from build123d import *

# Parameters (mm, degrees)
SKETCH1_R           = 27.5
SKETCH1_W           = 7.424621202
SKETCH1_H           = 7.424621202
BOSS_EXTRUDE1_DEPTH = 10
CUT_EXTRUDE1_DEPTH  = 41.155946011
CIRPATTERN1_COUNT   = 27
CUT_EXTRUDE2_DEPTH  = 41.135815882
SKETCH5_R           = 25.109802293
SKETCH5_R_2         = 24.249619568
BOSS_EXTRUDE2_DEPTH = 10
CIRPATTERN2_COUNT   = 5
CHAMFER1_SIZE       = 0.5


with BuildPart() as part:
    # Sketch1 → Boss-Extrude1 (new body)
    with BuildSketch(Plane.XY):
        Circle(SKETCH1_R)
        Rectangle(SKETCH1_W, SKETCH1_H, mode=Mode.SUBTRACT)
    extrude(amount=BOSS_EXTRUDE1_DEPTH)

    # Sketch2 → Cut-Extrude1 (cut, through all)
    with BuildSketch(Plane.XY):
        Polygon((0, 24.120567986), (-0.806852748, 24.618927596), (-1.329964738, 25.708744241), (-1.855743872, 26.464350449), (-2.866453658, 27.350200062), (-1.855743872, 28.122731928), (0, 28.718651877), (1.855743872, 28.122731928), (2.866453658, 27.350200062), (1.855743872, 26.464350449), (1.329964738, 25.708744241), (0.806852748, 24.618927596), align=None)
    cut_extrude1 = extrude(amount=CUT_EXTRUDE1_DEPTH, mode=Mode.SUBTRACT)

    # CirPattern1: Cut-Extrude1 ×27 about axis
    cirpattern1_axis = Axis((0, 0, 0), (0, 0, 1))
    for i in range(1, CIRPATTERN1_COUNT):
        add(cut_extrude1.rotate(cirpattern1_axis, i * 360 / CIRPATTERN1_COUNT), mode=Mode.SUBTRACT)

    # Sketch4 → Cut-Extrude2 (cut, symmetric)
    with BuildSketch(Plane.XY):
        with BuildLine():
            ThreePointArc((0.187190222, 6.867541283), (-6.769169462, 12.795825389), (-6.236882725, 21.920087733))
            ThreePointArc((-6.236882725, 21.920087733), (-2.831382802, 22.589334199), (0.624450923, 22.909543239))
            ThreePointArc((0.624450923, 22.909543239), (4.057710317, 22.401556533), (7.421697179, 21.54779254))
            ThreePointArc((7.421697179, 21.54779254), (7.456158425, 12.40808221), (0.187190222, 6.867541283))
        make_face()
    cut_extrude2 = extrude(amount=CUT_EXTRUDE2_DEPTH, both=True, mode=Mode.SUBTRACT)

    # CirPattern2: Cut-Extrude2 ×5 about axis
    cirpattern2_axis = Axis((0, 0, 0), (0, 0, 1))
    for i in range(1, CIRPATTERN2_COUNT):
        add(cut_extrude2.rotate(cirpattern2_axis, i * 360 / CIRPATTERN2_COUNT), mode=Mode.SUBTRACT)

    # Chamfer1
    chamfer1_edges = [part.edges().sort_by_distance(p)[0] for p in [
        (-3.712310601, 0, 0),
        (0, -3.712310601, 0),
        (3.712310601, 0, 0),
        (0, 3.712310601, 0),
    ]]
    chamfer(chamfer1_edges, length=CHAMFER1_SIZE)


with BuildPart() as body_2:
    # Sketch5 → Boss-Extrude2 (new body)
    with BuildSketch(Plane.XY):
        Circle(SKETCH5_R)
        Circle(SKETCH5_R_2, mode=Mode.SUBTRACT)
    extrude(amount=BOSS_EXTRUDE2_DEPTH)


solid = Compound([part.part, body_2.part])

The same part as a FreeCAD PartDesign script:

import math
import FreeCAD as App
import Part
import Sketcher

V = App.Vector


def edges_at(feature, points):
    """Names of the edges that pass closest to the given points."""
    edges = feature.Shape.Edges
    near = lambda p: min(range(len(edges)), key=lambda i: edges[i].distToShape(Part.Vertex(*p))[0])
    return sorted({f"Edge{near(p) + 1}" for p in points})


def add_polygon(sketch, points):
    """Adds a closed chain of lines whose ends are joined by coincident constraints."""
    first, n = sketch.GeometryCount, len(points)
    for a, b in zip(points, points[1:] + points[:1]):
        sketch.addGeometry(Part.LineSegment(App.Vector(*a, 0), App.Vector(*b, 0)), False)
    for i in range(n):
        sketch.addConstraint(Sketcher.Constraint("Coincident", first + i, 2, first + (i + 1) % n, 1))

doc = App.newDocument("Part")
body = doc.addObject("PartDesign::Body", "Body")

# Sketch on XY plane
sketch1 = body.newObject("Sketcher::SketchObject", "Sketch")
sketch1.AttachmentSupport = (doc.getObject("XY_Plane"), [""])
sketch1.MapMode = "FlatFace"
sketch1.addGeometry(Part.Circle(V(0, 0, 0), V(0, 0, 1), 28), False)  # 0
add_polygon(sketch1, [(4, -4), (-4, -4), (-4, 4), (4, 4)])  # lines 1-4
sketch1.addConstraint(Sketcher.Constraint("Horizontal", 1))
sketch1.addConstraint(Sketcher.Constraint("Vertical", 2))
sketch1.addConstraint(Sketcher.Constraint("Horizontal", 3))
sketch1.addConstraint(Sketcher.Constraint("Vertical", 4))
sketch1.addConstraint(Sketcher.Constraint("Coincident", 0, 3, -1, 1))
sketch1.addConstraint(Sketcher.Constraint("Symmetric", 1, 2, 3, 2, -1, 1))
sketch1.addConstraint(Sketcher.Constraint("Equal", 3, 2))
sketch1.addConstraint(Sketcher.Constraint("Diameter", 0, 55.0))
sketch1.addConstraint(Sketcher.Constraint("DistanceX", 1, 2, 1, 1, 7.424621))
pad1 = body.newObject("PartDesign::Pad", "Pad")
pad1.Profile = sketch1
pad1.Length = 10

# Sketch on XY plane
sketch2 = body.newObject("Sketcher::SketchObject", "Sketch001")
sketch2.AttachmentSupport = (doc.getObject("XY_Plane"), [""])
sketch2.MapMode = "FlatFace"
add_polygon(sketch2, [(-0.8, 24.6), (0, 24.1), (0.8, 24.6), (1.3, 25.7), (1.9, 26.5), (2.9, 27.4), (1.9, 28.1), (0, 28.7), (-1.9, 28.1), (-2.9, 27.4), (-1.9, 26.5), (-1.3, 25.7)])  # lines 0-11
sketch2.addConstraint(Sketcher.Constraint("Symmetric", 5, 2, 7, 2, -2))
sketch2.addConstraint(Sketcher.Constraint("Symmetric", 4, 2, 8, 2, -2))
sketch2.addConstraint(Sketcher.Constraint("Symmetric", 3, 2, 9, 2, -2))
sketch2.addConstraint(Sketcher.Constraint("Symmetric", 2, 2, 10, 2, -2))
sketch2.addConstraint(Sketcher.Constraint("Symmetric", 1, 2, 11, 2, -2))
sketch2.addConstraint(Sketcher.Constraint("PointOnObject", 0, 2, -2))
sketch2.addConstraint(Sketcher.Constraint("PointOnObject", 6, 2, -2))
sketch2.addConstraint(Sketcher.Constraint("Vertical", 3, 2, 5, 2))
sketch2.addConstraint(Sketcher.Constraint("DistanceY", -1, 1, 4, 2, 27.3502))
sketch2.addConstraint(Sketcher.Constraint("DistanceX", 1, 2, 4, 2, 2.059601))
sketch2.addConstraint(Sketcher.Constraint("DistanceY", 3, 2, 6, 2, 2.254301))
sketch2.addConstraint(Sketcher.Constraint("Distance", 2, 1.208862))
sketch2.addConstraint(Sketcher.Constraint("Distance", 5, 1.27214))
sketch2.addConstraint(Sketcher.Constraint("Distance", 6, 1.949078))
sketch2.addConstraint(Sketcher.Constraint("DistanceY", -1, 1, 3, 2, 26.46435))
sketch2.addConstraint(Sketcher.Constraint("DistanceY", -1, 1, 5, 2, 28.122732))
sketch2.addConstraint(Sketcher.Constraint("DistanceY", 0, 2, 1, 2, 0.49836))
sketch2.addConstraint(Sketcher.Constraint("DistanceX", 1, 2, 2, 2, 0.523112))
sketch2.addConstraint(Sketcher.Constraint("Distance", 3, 0.920535))
pocket1 = body.newObject("PartDesign::Pocket", "Pocket")
pocket1.Profile = sketch2
pocket1.Type = "ThroughAll"
pocket1.Reversed = True
doc.recompute()

polarpattern = body.newObject("PartDesign::PolarPattern", "PolarPattern")
polarpattern.Originals = [pocket1]
polarpattern.Axis = (doc.getObject("Z_Axis"), [""])
polarpattern.Angle = 360
polarpattern.Occurrences = 27
body.Tip = polarpattern

# Sketch on XY plane
sketch3 = body.newObject("Sketcher::SketchObject", "Sketch002")
sketch3.AttachmentSupport = (doc.getObject("XY_Plane"), [""])
sketch3.MapMode = "FlatFace"
sketch3.addGeometry(Part.ArcOfCircle(Part.Circle(V(3, 17, 0), V(0, 0, 1), 10), math.radians(150), math.radians(256)), False)
sketch3.addGeometry(Part.ArcOfCircle(Part.Circle(V(-2, 17, 0), V(0, 0, 1), 10), math.radians(-79), math.radians(27)), False)
sketch3.addGeometry(Part.ArcOfCircle(Part.Circle(V(-3, -11, 0), V(0, 0, 1), 34), math.radians(72.85), math.radians(84.5)), False)
sketch3.addGeometry(Part.ArcOfCircle(Part.Circle(V(2, -11, 0), V(0, 0, 1), 34), math.radians(92.38), math.radians(104.03)), False)
sketch3.addConstraint(Sketcher.Constraint("Coincident", 0, 2, 1, 1))
sketch3.addConstraint(Sketcher.Constraint("Coincident", 1, 2, 2, 1))
sketch3.addConstraint(Sketcher.Constraint("Coincident", 2, 2, 3, 1))
sketch3.addConstraint(Sketcher.Constraint("Coincident", 3, 2, 0, 1))
sketch3.addConstraint(Sketcher.Constraint("Equal", 0, 1))
sketch3.addConstraint(Sketcher.Constraint("Equal", 2, 3))
sketch3.addConstraint(Sketcher.Constraint("Radius", 2, 34.156781))
sketch3.addConstraint(Sketcher.Constraint("Radius", 0, 10.259675))
sketch3.addConstraint(Sketcher.Constraint("DistanceY", 0, 2, 2, 2, 16.042002))
sketch3.addConstraint(Sketcher.Constraint("DistanceX", -1, 1, 0, 3, 2.667081))
sketch3.addConstraint(Sketcher.Constraint("DistanceX", 2, 3, -1, 1, 2.651889))
sketch3.addConstraint(Sketcher.Constraint("DistanceY", 2, 3, -1, 1, 11.08974))
sketch3.addConstraint(Sketcher.Constraint("DistanceX", -1, 1, 3, 3, 2.043848))
sketch3.addConstraint(Sketcher.Constraint("DistanceX", -1, 1, 0, 2, 0.18719))
sketch3.addConstraint(Sketcher.Constraint("DistanceY", -1, 1, 0, 2, 6.867541))
sketch3.addConstraint(Sketcher.Constraint("DistanceY", 0, 2, 1, 3, 10.075762))
pocket2 = body.newObject("PartDesign::Pocket", "Pocket001")
pocket2.Profile = sketch3
pocket2.Length = 82.271632
pocket2.Midplane = True
doc.recompute()

polarpattern2 = body.newObject("PartDesign::PolarPattern", "PolarPattern001")
polarpattern2.Originals = [pocket2]
polarpattern2.Axis = (doc.getObject("Z_Axis"), [""])
polarpattern2.Angle = 360
polarpattern2.Occurrences = 5
body.Tip = polarpattern2
doc.recompute()

chamfer = body.newObject("PartDesign::Chamfer", "Chamfer")
chamfer.Base = (polarpattern2, edges_at(polarpattern2, [
    (-3.712, 0, 0),
    (0, -3.712, 0),
    (3.712, 0, 0),
    (0, 3.712, 0),
]))
chamfer.Size = 0.5
body2 = doc.addObject("PartDesign::Body", "Body001")

# Sketch on XY plane
sketch4 = body2.newObject("Sketcher::SketchObject", "Sketch003")
sketch4.AttachmentSupport = (doc.getObject("XY_Plane001"), [""])
sketch4.MapMode = "FlatFace"
sketch4.addGeometry(Part.Circle(V(0, 0, 0), V(0, 0, 1), 25), False)
sketch4.addGeometry(Part.Circle(V(0, 0, 0), V(0, 0, 1), 24), False)
sketch4.addConstraint(Sketcher.Constraint("Coincident", 0, 3, -1, 1))
sketch4.addConstraint(Sketcher.Constraint("Coincident", 1, 3, -1, 1))
sketch4.addConstraint(Sketcher.Constraint("Diameter", 1, 48.499239))
sketch4.addConstraint(Sketcher.Constraint("Diameter", 0, 50.219605))
pad2 = body2.newObject("PartDesign::Pad", "Pad001")
pad2.Profile = sketch4
pad2.Length = 10

doc.recompute()
